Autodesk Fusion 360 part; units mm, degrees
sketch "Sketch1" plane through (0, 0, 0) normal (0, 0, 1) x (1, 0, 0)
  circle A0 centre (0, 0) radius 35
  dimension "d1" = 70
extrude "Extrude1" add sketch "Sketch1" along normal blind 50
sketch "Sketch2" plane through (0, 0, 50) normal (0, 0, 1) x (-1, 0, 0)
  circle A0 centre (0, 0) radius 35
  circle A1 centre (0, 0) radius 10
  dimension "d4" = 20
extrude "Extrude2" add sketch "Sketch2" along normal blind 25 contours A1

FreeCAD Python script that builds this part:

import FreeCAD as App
import Part
import Sketcher
from FreeCAD import Vector
Q = App.Units.Quantity

doc = App.newDocument("Part")
body = doc.addObject("PartDesign::Body", "Body")

# Sketch on XY plane
sketch1 = body.newObject("Sketcher::SketchObject", "Sketch")
sketch1.AttachmentSupport = (doc.getObject("XY_Plane"), [""])
sketch1.MapMode = "FlatFace"
sketch1.addGeometry(Part.Circle(Vector(0, 0, 0), Vector(0, 0, 1), 35), False)
sketch1.addConstraint(Sketcher.Constraint("Coincident", 0, 3, -1, 1))
sketch1.addConstraint(Sketcher.Constraint("Diameter", 0, Q("70 mm")))
pad1 = body.newObject("PartDesign::Pad", "Pad")
pad1.Profile = sketch1
pad1.Length = 50

# Sketch on XY plane
sketch2 = body.newObject("Sketcher::SketchObject", "Sketch001")
sketch2.AttachmentSupport = (doc.getObject("XY_Plane"), [""])
sketch2.MapMode = "FlatFace"
sketch2.AttachmentOffset = App.Placement(Vector(0, 0, 50), App.Rotation())
sketch2.addGeometry(Part.Circle(Vector(0, 0, 0), Vector(0, 0, 1), 10), False)
sketch2.addConstraint(Sketcher.Constraint("Coincident", 0, 3, -1, 1))
sketch2.addConstraint(Sketcher.Constraint("Diameter", 0, Q("20 mm")))
pad2 = body.newObject("PartDesign::Pad", "Pad001")
pad2.Profile = sketch2
pad2.Length = 25

doc.recompute()
